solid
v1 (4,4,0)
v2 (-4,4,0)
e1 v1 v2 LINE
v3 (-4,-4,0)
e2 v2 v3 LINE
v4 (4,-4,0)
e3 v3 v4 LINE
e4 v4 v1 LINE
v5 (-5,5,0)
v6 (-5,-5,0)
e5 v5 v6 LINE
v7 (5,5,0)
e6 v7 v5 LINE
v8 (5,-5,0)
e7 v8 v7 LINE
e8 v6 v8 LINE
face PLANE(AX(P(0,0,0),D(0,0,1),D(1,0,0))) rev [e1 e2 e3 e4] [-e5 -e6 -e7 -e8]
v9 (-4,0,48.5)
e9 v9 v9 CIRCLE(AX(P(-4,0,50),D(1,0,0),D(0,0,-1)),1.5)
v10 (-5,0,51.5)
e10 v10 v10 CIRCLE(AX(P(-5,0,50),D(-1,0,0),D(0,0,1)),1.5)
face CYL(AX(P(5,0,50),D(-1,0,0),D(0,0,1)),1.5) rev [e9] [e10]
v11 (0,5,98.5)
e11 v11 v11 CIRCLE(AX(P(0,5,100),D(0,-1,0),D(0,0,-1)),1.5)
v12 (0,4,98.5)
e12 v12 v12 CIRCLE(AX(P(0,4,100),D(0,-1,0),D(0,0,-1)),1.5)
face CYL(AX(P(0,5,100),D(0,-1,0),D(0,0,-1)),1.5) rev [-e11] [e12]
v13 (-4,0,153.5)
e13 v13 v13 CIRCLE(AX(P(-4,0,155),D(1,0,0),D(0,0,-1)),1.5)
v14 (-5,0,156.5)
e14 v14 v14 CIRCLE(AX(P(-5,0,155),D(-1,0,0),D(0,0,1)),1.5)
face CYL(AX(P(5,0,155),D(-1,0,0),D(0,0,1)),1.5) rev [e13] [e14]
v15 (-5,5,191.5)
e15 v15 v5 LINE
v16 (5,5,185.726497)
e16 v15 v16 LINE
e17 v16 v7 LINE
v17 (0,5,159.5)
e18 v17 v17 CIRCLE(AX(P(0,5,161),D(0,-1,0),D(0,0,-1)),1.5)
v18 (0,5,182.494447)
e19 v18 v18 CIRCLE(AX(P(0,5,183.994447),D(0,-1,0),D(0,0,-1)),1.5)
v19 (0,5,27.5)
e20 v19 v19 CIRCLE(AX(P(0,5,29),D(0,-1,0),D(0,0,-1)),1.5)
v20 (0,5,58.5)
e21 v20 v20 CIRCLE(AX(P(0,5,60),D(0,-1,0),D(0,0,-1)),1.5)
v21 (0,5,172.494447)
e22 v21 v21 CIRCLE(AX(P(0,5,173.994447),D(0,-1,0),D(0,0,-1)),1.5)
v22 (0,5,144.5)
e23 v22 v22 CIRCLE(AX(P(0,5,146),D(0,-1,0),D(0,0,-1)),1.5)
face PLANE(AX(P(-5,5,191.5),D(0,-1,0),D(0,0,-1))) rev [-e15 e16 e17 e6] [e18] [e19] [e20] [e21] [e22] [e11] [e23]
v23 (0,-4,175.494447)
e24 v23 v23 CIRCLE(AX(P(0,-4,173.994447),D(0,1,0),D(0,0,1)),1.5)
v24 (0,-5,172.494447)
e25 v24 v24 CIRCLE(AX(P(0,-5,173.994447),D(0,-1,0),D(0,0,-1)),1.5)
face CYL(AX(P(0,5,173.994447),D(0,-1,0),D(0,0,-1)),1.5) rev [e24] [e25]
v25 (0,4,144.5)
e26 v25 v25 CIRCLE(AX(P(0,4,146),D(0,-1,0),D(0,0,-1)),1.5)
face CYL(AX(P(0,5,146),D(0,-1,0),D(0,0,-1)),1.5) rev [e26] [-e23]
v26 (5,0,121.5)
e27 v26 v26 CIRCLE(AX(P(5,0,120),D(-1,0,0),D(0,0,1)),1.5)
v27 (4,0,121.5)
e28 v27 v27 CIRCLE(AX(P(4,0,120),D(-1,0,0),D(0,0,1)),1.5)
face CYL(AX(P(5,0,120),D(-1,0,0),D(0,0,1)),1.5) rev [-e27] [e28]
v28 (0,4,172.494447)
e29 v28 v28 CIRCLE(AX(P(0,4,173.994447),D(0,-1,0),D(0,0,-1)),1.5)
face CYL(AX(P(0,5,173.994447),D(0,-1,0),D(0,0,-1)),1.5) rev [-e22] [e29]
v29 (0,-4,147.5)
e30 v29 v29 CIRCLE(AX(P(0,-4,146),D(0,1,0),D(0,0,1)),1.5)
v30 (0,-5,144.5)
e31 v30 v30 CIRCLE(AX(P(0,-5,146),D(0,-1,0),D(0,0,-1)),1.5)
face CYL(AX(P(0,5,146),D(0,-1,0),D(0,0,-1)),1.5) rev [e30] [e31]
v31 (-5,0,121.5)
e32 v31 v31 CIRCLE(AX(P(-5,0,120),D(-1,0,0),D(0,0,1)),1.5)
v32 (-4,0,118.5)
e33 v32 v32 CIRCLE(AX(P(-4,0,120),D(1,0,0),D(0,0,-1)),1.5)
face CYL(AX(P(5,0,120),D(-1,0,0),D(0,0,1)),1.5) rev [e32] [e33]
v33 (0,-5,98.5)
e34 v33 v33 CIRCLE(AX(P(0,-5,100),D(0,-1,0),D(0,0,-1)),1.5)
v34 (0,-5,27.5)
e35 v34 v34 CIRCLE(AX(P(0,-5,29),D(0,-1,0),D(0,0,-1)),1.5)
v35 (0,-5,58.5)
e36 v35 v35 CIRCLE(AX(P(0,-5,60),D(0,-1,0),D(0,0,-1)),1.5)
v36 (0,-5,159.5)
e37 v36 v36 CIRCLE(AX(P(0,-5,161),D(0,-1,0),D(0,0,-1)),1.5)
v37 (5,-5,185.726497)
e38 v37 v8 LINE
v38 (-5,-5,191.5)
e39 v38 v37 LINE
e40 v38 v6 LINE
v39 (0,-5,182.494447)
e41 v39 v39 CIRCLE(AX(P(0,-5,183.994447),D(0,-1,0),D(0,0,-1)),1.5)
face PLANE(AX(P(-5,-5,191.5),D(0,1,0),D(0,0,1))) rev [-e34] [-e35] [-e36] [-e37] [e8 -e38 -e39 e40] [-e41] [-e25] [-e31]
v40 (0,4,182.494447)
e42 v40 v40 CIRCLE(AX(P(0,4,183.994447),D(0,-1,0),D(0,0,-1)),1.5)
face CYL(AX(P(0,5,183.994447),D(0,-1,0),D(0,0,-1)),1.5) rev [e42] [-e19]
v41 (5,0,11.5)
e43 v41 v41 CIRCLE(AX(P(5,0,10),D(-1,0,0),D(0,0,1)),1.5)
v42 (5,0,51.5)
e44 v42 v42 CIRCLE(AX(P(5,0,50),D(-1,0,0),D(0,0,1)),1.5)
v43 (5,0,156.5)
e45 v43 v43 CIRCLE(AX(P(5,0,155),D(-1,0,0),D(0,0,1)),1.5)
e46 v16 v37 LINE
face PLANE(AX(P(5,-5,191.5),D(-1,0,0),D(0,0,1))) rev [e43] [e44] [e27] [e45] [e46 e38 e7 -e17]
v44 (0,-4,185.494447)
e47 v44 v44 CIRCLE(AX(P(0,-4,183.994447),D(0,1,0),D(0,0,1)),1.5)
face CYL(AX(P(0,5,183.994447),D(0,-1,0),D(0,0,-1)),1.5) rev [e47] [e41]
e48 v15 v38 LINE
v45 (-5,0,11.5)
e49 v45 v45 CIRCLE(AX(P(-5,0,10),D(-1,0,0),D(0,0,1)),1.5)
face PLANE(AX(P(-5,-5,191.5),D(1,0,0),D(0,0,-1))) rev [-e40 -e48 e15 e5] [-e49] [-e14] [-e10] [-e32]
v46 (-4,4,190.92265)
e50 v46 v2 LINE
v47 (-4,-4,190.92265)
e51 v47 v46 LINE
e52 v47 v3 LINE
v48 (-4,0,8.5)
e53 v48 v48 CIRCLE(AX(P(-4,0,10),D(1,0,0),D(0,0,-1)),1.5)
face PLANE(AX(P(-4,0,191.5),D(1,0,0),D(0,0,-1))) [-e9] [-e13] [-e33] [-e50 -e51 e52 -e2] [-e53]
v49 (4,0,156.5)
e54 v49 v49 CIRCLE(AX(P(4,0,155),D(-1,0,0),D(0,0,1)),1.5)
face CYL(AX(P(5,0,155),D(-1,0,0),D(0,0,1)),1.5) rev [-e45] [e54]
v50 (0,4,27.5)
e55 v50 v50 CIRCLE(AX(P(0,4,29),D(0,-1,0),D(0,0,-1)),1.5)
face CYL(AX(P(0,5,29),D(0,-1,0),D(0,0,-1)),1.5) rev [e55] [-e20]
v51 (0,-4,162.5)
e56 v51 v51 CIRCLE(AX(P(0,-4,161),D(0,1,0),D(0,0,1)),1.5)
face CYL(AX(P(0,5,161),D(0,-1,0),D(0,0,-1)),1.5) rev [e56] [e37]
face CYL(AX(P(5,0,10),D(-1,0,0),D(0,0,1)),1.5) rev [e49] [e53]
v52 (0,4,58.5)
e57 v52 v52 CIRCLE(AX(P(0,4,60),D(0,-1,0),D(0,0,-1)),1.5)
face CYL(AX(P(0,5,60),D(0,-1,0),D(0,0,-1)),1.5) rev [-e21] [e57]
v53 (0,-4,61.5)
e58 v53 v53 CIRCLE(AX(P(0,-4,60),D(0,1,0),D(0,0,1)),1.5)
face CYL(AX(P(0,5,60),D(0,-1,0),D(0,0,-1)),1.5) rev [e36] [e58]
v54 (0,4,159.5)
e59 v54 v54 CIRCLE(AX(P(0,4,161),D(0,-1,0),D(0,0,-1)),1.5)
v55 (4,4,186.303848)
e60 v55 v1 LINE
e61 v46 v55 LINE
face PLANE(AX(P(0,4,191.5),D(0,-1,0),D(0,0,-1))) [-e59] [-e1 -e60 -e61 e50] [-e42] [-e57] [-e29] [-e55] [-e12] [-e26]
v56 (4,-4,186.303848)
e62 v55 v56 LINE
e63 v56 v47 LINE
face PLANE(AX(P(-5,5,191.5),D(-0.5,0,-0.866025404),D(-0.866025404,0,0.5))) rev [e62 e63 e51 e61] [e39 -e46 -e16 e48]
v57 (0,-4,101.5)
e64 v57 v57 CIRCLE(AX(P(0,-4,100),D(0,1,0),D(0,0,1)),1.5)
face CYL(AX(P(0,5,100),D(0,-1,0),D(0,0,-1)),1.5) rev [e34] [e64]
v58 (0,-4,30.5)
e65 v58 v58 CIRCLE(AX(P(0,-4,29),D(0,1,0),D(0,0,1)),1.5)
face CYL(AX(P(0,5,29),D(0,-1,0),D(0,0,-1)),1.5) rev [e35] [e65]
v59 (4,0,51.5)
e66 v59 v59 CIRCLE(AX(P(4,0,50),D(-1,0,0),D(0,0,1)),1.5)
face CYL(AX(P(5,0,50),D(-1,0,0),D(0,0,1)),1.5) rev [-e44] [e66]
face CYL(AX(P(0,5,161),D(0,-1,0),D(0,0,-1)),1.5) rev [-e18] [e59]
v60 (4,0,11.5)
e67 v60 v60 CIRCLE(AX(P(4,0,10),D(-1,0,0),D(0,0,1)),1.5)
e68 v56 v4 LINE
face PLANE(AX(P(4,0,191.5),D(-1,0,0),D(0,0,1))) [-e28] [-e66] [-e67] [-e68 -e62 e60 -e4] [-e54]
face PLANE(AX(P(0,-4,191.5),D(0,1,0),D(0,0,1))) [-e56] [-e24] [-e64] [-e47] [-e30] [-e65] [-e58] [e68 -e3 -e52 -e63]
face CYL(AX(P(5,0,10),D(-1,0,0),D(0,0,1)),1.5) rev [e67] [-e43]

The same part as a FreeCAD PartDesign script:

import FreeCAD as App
import Part
import Sketcher
Q = App.Units.Quantity


def add_polygon(sketch, points):
    """Adds a closed chain of lines whose ends are joined by coincident constraints."""
    first, n = sketch.GeometryCount, len(points)
    for a, b in zip(points, points[1:] + points[:1]):
        sketch.addGeometry(Part.LineSegment(App.Vector(*a, 0), App.Vector(*b, 0)), False)
    for i in range(n):
        sketch.addConstraint(Sketcher.Constraint("Coincident", first + i, 2, first + (i + 1) % n, 1))

doc = App.newDocument("Part")
body = doc.addObject("PartDesign::Body", "Body")

sketch1 = body.newObject("Sketcher::SketchObject", "Sketch")
sketch1.AttachmentSupport = (doc.getObject("XY_Plane"), [""])
sketch1.MapMode = "FlatFace"
add_polygon(sketch1, [(-5, 5), (-5, -5), (5, -5), (5, 5)])
add_polygon(sketch1, [(4, -4), (-4, -4), (-4, 4), (4, 4)])
sketch1.addConstraint(Sketcher.Constraint("Vertical", 0))
sketch1.addConstraint(Sketcher.Constraint("Horizontal", 1))
sketch1.addConstraint(Sketcher.Constraint("Vertical", 2))
sketch1.addConstraint(Sketcher.Constraint("Horizontal", 3))
sketch1.addConstraint(Sketcher.Constraint("Horizontal", 4))
sketch1.addConstraint(Sketcher.Constraint("Vertical", 5))
sketch1.addConstraint(Sketcher.Constraint("Horizontal", 6))
sketch1.addConstraint(Sketcher.Constraint("Vertical", 7))
sketch1.addConstraint(Sketcher.Constraint("Symmetric", 0, 2, 2, 2, -1, 1))
sketch1.addConstraint(Sketcher.Constraint("Symmetric", 4, 2, 6, 2, -1, 1))
sketch1.addConstraint(Sketcher.Constraint("Equal", 3, 0))
sketch1.addConstraint(Sketcher.Constraint("Equal", 6, 5))
sketch1.addConstraint(Sketcher.Constraint("DistanceX", 1, 1, 1, 2, 10.0))
sketch1.addConstraint(Sketcher.Constraint("DistanceX", 4, 2, 4, 1, 8.0))
pad1 = body.newObject("PartDesign::Pad", "Pad")
pad1.Profile = sketch1
pad1.Length = 191.5

sketch2 = body.newObject("Sketcher::SketchObject", "Sketch001")
sketch2.AttachmentSupport = (doc.getObject("XZ_Plane"), [""])
sketch2.MapMode = "FlatFace"
sketch2.AttachmentOffset = App.Placement(App.Vector(0, 0, 5), App.Rotation())
sketch2.addGeometry(Part.Circle(App.Vector(0, 184, 0), App.Vector(0, 0, 1), 1.5), False)
sketch2.addGeometry(Part.Circle(App.Vector(0, 29, 0), App.Vector(0, 0, 1), 1.5), False)
sketch2.addGeometry(Part.Circle(App.Vector(0, 174, 0), App.Vector(0, 0, 1), 1.5), False)
sketch2.addGeometry(Part.Circle(App.Vector(0, 100, 0), App.Vector(0, 0, 1), 1.5), False)
sketch2.addGeometry(Part.Circle(App.Vector(0, 60, 0), App.Vector(0, 0, 1), 1.5), False)
sketch2.addGeometry(Part.Circle(App.Vector(0, 146, 0), App.Vector(0, 0, 1), 1.5), False)
sketch2.addGeometry(Part.Circle(App.Vector(0, 161, 0), App.Vector(0, 0, 1), 1.5), False)
add_polygon(sketch2, [(-5, 191.5), (5, 185.7), (5, 191.5)])
sketch2.addConstraint(Sketcher.Constraint("Vertical", 8))
sketch2.addConstraint(Sketcher.Constraint("Horizontal", 9))
sketch2.addConstraint(Sketcher.Constraint("Equal", 0, 1))
sketch2.addConstraint(Sketcher.Constraint("Equal", 1, 2))
sketch2.addConstraint(Sketcher.Constraint("Equal", 2, 3))
sketch2.addConstraint(Sketcher.Constraint("Equal", 3, 4))
sketch2.addConstraint(Sketcher.Constraint("Equal", 4, 5))
sketch2.addConstraint(Sketcher.Constraint("Equal", 5, 6))
sketch2.addConstraint(Sketcher.Constraint("PointOnObject", 0, 3, -2))
sketch2.addConstraint(Sketcher.Constraint("PointOnObject", 1, 3, -2))
sketch2.addConstraint(Sketcher.Constraint("PointOnObject", 2, 3, -2))
sketch2.addConstraint(Sketcher.Constraint("PointOnObject", 3, 3, -2))
sketch2.addConstraint(Sketcher.Constraint("PointOnObject", 4, 3, -2))
sketch2.addConstraint(Sketcher.Constraint("PointOnObject", 5, 3, -2))
sketch2.addConstraint(Sketcher.Constraint("PointOnObject", 6, 3, -2))
sketch2.addConstraint(Sketcher.Constraint("Diameter", 0, 3.0))
sketch2.addConstraint(Sketcher.Constraint("DistanceX", 9, 2, 9, 1, 10.0))
sketch2.addConstraint(Sketcher.Constraint("Angle", 7, Q("-30 deg")))
sketch2.addConstraint(Sketcher.Constraint("DistanceY", -1, 1, 1, 3, 29.0))
sketch2.addConstraint(Sketcher.Constraint("DistanceY", -1, 1, 3, 3, 100.0))
sketch2.addConstraint(Sketcher.Constraint("DistanceY", -1, 1, 4, 3, 60.0))
sketch2.addConstraint(Sketcher.Constraint("DistanceY", -1, 1, 5, 3, 146.0))
sketch2.addConstraint(Sketcher.Constraint("DistanceY", -1, 1, 6, 3, 161.0))
sketch2.addConstraint(Sketcher.Constraint("DistanceX", -1, 1, 7, 2, 5.0))
sketch2.addConstraint(Sketcher.Constraint("DistanceY", 2, 3, 0, 3, 10.0))
sketch2.addConstraint(Sketcher.Constraint("DistanceY", -1, 1, 8, 2, 191.5))
sketch2.addConstraint(Sketcher.Constraint("DistanceY", 0, 3, 7, 2, 1.732051))
pocket1 = body.newObject("PartDesign::Pocket", "Pocket")
pocket1.Profile = sketch2
pocket1.Type = "ThroughAll"

sketch3 = body.newObject("Sketcher::SketchObject", "Sketch002")
sketch3.AttachmentSupport = (doc.getObject("YZ_Plane"), [""])
sketch3.MapMode = "FlatFace"
sketch3.AttachmentOffset = App.Placement(App.Vector(0, 0, -5), App.Rotation())
sketch3.addGeometry(Part.Circle(App.Vector(0, 50, 0), App.Vector(0, 0, 1), 1.5), False)
sketch3.addGeometry(Part.Circle(App.Vector(0, 120, 0), App.Vector(0, 0, 1), 1.5), False)
sketch3.addGeometry(Part.Circle(App.Vector(0, 10, 0), App.Vector(0, 0, 1), 1.5), False)
sketch3.addGeometry(Part.Circle(App.Vector(0, 155, 0), App.Vector(0, 0, 1), 1.5), False)
sketch3.addConstraint(Sketcher.Constraint("Equal", 0, 1))
sketch3.addConstraint(Sketcher.Constraint("Equal", 1, 2))
sketch3.addConstraint(Sketcher.Constraint("Equal", 2, 3))
sketch3.addConstraint(Sketcher.Constraint("PointOnObject", 0, 3, -2))
sketch3.addConstraint(Sketcher.Constraint("PointOnObject", 1, 3, -2))
sketch3.addConstraint(Sketcher.Constraint("PointOnObject", 2, 3, -2))
sketch3.addConstraint(Sketcher.Constraint("PointOnObject", 3, 3, -2))
sketch3.addConstraint(Sketcher.Constraint("Diameter", 0, 3.0))
sketch3.addConstraint(Sketcher.Constraint("DistanceY", -1, 1, 0, 3, 50.0))
sketch3.addConstraint(Sketcher.Constraint("DistanceY", -1, 1, 1, 3, 120.0))
sketch3.addConstraint(Sketcher.Constraint("DistanceY", -1, 1, 2, 3, 10.0))
sketch3.addConstraint(Sketcher.Constraint("DistanceY", -1, 1, 3, 3, 155.0))
pocket2 = body.newObject("PartDesign::Pocket", "Pocket001")
pocket2.Profile = sketch3
pocket2.Type = "ThroughAll"
pocket2.Reversed = True

doc.recompute()
